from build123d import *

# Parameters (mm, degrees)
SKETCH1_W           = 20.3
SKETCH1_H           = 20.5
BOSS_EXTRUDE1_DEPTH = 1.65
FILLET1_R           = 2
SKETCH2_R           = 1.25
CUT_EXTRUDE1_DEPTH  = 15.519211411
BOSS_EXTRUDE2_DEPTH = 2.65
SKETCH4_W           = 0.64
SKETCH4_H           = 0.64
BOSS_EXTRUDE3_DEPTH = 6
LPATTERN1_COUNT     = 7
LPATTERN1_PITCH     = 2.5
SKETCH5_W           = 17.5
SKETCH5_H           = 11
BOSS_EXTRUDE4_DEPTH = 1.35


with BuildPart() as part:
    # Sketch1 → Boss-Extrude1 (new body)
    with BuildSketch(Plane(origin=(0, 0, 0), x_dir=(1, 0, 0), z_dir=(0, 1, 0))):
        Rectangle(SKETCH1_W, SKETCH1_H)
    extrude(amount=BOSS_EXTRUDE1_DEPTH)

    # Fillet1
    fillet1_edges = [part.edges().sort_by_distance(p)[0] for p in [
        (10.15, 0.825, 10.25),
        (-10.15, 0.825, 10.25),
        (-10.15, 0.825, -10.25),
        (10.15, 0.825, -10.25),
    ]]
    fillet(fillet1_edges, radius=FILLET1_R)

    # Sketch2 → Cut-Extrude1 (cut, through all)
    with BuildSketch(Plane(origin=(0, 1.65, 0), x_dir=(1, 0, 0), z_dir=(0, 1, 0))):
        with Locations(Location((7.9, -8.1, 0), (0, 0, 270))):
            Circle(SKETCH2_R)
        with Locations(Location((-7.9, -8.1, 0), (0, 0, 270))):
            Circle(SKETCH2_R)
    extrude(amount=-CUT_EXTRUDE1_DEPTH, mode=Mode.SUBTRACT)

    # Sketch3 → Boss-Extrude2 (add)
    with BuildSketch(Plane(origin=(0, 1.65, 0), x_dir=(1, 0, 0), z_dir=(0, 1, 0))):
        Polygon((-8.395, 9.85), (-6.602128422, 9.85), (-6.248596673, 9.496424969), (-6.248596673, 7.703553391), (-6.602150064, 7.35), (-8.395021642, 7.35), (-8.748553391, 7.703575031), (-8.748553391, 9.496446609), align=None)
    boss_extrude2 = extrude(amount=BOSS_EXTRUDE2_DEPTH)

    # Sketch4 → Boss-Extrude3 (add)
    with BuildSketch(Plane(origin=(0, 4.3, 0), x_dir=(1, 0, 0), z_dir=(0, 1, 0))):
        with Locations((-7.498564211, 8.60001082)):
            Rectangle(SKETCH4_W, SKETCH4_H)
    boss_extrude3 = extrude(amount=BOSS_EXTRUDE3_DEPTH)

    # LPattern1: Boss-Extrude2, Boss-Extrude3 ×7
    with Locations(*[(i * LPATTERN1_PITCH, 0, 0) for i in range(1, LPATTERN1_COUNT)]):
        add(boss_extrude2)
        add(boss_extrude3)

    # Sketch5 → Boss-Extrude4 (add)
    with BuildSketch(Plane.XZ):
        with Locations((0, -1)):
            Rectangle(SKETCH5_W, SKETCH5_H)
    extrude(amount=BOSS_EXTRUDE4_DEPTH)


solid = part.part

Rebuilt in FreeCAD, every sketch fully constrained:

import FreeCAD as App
import Part
import Sketcher

V = App.Vector
Q = App.Units.Quantity


def edges_at(feature, points):
    """Names of the edges that pass closest to the given points."""
    edges = feature.Shape.Edges
    near = lambda p: min(range(len(edges)), key=lambda i: edges[i].distToShape(Part.Vertex(*p))[0])
    return sorted({f"Edge{near(p) + 1}" for p in points})


def add_polygon(sketch, points):
    """Adds a closed chain of lines whose ends are joined by coincident constraints."""
    first, n = sketch.GeometryCount, len(points)
    for a, b in zip(points, points[1:] + points[:1]):
        sketch.addGeometry(Part.LineSegment(App.Vector(*a, 0), App.Vector(*b, 0)), False)
    for i in range(n):
        sketch.addConstraint(Sketcher.Constraint("Coincident", first + i, 2, first + (i + 1) % n, 1))

doc = App.newDocument("Part")
body = doc.addObject("PartDesign::Body", "Body")

sketch1 = body.newObject("Sketcher::SketchObject", "Sketch")
sketch1.AttachmentSupport = (doc.getObject("XZ_Plane"), [""])
sketch1.MapMode = "FlatFace"
add_polygon(sketch1, [(-10.15, -10.25), (-10.15, 10.25), (10.15, 10.25), (10.15, -10.25)])
sketch1.addConstraint(Sketcher.Constraint("Vertical", 0))
sketch1.addConstraint(Sketcher.Constraint("Horizontal", 1))
sketch1.addConstraint(Sketcher.Constraint("Vertical", 2))
sketch1.addConstraint(Sketcher.Constraint("Horizontal", 3))
sketch1.addConstraint(Sketcher.Constraint("Symmetric", 0, 2, 2, 2, -1, 1))
sketch1.addConstraint(Sketcher.Constraint("DistanceX", 1, 1, 1, 2, Q("20.3 mm")))
sketch1.addConstraint(Sketcher.Constraint("DistanceY", 0, 1, 0, 2, Q("20.5 mm")))
pad1 = body.newObject("PartDesign::Pad", "Pad")
pad1.Profile = sketch1
pad1.Length = 1.65
pad1.Reversed = True
doc.recompute()

fillet = body.newObject("PartDesign::Fillet", "Fillet")
fillet.Base = (pad1, edges_at(pad1, [
    (10.15, 0.825, 10.25),
    (-10.15, 0.825, 10.25),
    (-10.15, 0.825, -10.25),
    (10.15, 0.825, -10.25),
]))
fillet.Radius = 2

sketch2 = body.newObject("Sketcher::SketchObject", "Sketch001")
sketch2.AttachmentSupport = (doc.getObject("XZ_Plane"), [""])
sketch2.MapMode = "FlatFace"
sketch2.AttachmentOffset = App.Placement(V(0, 0, -1.65), App.Rotation())
sketch2.addGeometry(Part.Circle(V(7.9, 8.1, 0), V(0, 0, 1), 1.25), False)
sketch2.addGeometry(Part.Circle(V(-7.9, 8.1, 0), V(0, 0, 1), 1.25), False)
sketch2.addConstraint(Sketcher.Constraint("Equal", 0, 1))
sketch2.addConstraint(Sketcher.Constraint("Symmetric", 0, 3, 1, 3, -2))
sketch2.addConstraint(Sketcher.Constraint("Diameter", 0, Q("2.5 mm")))
sketch2.addConstraint(Sketcher.Constraint("DistanceX", -1, 1, 0, 3, Q("7.9 mm")))
sketch2.addConstraint(Sketcher.Constraint("DistanceY", -1, 1, 0, 3, Q("8.1 mm")))
pocket1 = body.newObject("PartDesign::Pocket", "Pocket")
pocket1.Profile = sketch2
pocket1.Type = "ThroughAll"
pocket1.Reversed = True

sketch3 = body.newObject("Sketcher::SketchObject", "Sketch002")
sketch3.AttachmentSupport = (doc.getObject("XZ_Plane"), [""])
sketch3.MapMode = "FlatFace"
sketch3.AttachmentOffset = App.Placement(V(0, 0, -1.65), App.Rotation())
add_polygon(sketch3, [(-6.602128, -9.85), (-8.395, -9.85), (-8.748553, -9.496447), (-8.748553, -7.703575), (-8.395022, -7.35), (-6.60215, -7.35), (-6.248597, -7.703553), (-6.248597, -9.496425)])
sketch3.addConstraint(Sketcher.Constraint("Horizontal", 0))
sketch3.addConstraint(Sketcher.Constraint("Vertical", 2))
sketch3.addConstraint(Sketcher.Constraint("Horizontal", 4))
sketch3.addConstraint(Sketcher.Constraint("Vertical", 6))
sketch3.addConstraint(Sketcher.Constraint("Parallel", 1, 5))
sketch3.addConstraint(Sketcher.Constraint("Parallel", 3, 7))
sketch3.addConstraint(Sketcher.Constraint("Equal", 0, 4))
sketch3.addConstraint(Sketcher.Constraint("Equal", 4, 2))
sketch3.addConstraint(Sketcher.Constraint("Equal", 2, 6))
sketch3.addConstraint(Sketcher.Constraint("Equal", 1, 3))
sketch3.addConstraint(Sketcher.Constraint("Angle", 1, Q("135 deg")))
sketch3.addConstraint(Sketcher.Constraint("Distance", 1, Q("0.5 mm")))
sketch3.addConstraint(Sketcher.Constraint("DistanceY", 0, 2, 3, 2, Q("2.5 mm")))
sketch3.addConstraint(Sketcher.Constraint("DistanceY", 0, 2, -1, 1, Q("9.85 mm")))
sketch3.addConstraint(Sketcher.Constraint("DistanceX", 0, 2, -1, 1, Q("8.395 mm")))
sketch3.addConstraint(Sketcher.Constraint("DistanceX", 0, 2, 0, 1, Q("1.792872 mm")))
pad2 = body.newObject("PartDesign::Pad", "Pad001")
pad2.Profile = sketch3
pad2.Length = 2.65
pad2.Reversed = True

sketch4 = body.newObject("Sketcher::SketchObject", "Sketch003")
sketch4.AttachmentSupport = (doc.getObject("XZ_Plane"), [""])
sketch4.MapMode = "FlatFace"
sketch4.AttachmentOffset = App.Placement(V(0, 0, -4.3), App.Rotation())
add_polygon(sketch4, [(-7.818564, -8.920011), (-7.818564, -8.280011), (-7.178564, -8.280011), (-7.178564, -8.920011)])
sketch4.addConstraint(Sketcher.Constraint("Vertical", 0))
sketch4.addConstraint(Sketcher.Constraint("Horizontal", 1))
sketch4.addConstraint(Sketcher.Constraint("Vertical", 2))
sketch4.addConstraint(Sketcher.Constraint("Horizontal", 3))
sketch4.addConstraint(Sketcher.Constraint("Equal", 3, 0))
sketch4.addConstraint(Sketcher.Constraint("DistanceX", 1, 1, 1, 2, Q("0.64 mm")))
sketch4.addConstraint(Sketcher.Constraint("DistanceY", 0, 2, -1, 1, Q("8.280011 mm")))
sketch4.addConstraint(Sketcher.Constraint("DistanceX", 0, 2, -1, 1, Q("7.818564 mm")))
pad3 = body.newObject("PartDesign::Pad", "Pad002")
pad3.Profile = sketch4
pad3.Length = 6
pad3.Reversed = True
doc.recompute()

linearpattern = body.newObject("PartDesign::LinearPattern", "LinearPattern")
linearpattern.Originals = [pad2, pad3]
linearpattern.Direction = (doc.getObject("X_Axis"), [""])
linearpattern.Mode = "offset"
linearpattern.Offset = 2.5
linearpattern.Occurrences = 7
body.Tip = linearpattern

sketch5 = body.newObject("Sketcher::SketchObject", "Sketch004")
sketch5.AttachmentSupport = (doc.getObject("XZ_Plane"), [""])
sketch5.MapMode = "FlatFace"
add_polygon(sketch5, [(-8.75, 4.5), (-8.75, -6.5), (8.75, -6.5), (8.75, 4.5)])
sketch5.addConstraint(Sketcher.Constraint("Vertical", 0))
sketch5.addConstraint(Sketcher.Constraint("Horizontal", 1))
sketch5.addConstraint(Sketcher.Constraint("Vertical", 2))
sketch5.addConstraint(Sketcher.Constraint("Horizontal", 3))
sketch5.addConstraint(Sketcher.Constraint("DistanceY", 0, 2, 0, 1, Q("11 mm")))
sketch5.addConstraint(Sketcher.Constraint("DistanceX", 1, 1, 1, 2, Q("17.5 mm")))
sketch5.addConstraint(Sketcher.Constraint("DistanceY", 0, 2, -1, 1, Q("6.5 mm")))
sketch5.addConstraint(Sketcher.Constraint("DistanceX", 0, 2, -1, 1, Q("8.75 mm")))
pad4 = body.newObject("PartDesign::Pad", "Pad003")
pad4.Profile = sketch5
pad4.Length = 1.35

doc.recompute()
